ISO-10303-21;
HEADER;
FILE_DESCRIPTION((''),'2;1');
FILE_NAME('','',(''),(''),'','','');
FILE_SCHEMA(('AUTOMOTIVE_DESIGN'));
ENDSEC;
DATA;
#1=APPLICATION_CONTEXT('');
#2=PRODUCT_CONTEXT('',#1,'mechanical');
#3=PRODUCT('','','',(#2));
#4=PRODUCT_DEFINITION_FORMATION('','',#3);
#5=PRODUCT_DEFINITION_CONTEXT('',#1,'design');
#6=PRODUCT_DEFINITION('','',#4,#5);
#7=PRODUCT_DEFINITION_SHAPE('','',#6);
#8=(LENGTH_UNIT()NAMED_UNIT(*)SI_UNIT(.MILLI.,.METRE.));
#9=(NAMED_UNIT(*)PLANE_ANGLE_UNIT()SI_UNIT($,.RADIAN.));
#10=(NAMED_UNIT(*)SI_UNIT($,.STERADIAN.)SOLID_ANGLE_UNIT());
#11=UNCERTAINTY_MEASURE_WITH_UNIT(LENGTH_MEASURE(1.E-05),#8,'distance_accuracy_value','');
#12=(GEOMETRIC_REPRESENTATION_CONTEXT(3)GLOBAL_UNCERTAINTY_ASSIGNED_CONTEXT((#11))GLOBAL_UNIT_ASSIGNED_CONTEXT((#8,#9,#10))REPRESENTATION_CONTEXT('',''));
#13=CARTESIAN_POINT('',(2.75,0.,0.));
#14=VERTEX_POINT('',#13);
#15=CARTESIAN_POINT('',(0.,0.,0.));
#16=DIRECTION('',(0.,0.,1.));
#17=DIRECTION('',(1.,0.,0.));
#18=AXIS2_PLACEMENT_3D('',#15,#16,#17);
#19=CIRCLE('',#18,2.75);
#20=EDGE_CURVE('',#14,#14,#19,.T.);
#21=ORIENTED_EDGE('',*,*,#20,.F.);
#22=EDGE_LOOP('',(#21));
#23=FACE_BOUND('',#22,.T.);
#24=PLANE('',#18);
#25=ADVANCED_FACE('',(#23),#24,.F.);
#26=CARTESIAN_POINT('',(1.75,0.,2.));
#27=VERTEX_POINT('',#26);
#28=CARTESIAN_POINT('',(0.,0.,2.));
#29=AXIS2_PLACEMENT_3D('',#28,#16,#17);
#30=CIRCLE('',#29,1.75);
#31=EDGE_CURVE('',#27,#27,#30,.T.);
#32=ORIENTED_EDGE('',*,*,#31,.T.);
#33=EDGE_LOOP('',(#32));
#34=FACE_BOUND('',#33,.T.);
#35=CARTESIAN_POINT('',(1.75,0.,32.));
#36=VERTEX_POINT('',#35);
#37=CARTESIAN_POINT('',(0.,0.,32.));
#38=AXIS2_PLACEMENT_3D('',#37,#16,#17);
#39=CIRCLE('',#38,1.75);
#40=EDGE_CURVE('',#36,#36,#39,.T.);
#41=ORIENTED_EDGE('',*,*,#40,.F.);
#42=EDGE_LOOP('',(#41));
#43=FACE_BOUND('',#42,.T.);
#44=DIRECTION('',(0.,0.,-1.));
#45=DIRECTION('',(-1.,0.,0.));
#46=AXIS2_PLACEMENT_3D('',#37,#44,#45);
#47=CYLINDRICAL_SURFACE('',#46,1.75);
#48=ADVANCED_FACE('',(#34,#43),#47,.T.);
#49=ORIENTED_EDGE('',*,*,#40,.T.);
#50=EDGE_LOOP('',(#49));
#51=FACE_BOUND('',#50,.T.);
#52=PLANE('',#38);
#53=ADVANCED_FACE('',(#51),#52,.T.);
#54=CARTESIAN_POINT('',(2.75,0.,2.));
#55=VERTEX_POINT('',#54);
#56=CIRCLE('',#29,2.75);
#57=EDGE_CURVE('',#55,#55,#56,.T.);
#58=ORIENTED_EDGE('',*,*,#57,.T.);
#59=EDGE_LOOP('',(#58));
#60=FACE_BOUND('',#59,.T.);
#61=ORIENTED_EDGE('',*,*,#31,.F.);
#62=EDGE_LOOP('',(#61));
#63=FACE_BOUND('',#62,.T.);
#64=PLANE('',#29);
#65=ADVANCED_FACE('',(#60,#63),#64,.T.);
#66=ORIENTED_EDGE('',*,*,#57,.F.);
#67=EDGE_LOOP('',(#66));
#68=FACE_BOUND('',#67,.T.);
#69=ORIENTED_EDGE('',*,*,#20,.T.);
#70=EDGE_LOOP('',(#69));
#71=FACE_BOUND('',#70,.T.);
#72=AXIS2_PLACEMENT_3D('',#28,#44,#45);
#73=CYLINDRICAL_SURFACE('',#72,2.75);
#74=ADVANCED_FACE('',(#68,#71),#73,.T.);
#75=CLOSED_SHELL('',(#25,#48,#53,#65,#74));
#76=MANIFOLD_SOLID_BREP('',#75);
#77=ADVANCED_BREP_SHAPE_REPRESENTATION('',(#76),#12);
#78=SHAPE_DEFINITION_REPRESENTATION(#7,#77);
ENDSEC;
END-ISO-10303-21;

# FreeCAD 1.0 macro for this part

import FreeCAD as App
import Part
import Sketcher

V = App.Vector

doc = App.newDocument("Part")
body = doc.addObject("PartDesign::Body", "Body")

sketch1 = body.newObject("Sketcher::SketchObject", "Sketch")
sketch1.AttachmentSupport = (doc.getObject("XY_Plane"), [""])
sketch1.MapMode = "FlatFace"
sketch1.addGeometry(Part.Circle(V(0, 0, 0), V(0, 0, 1), 2.8), False)
sketch1.addConstraint([
    Sketcher.Constraint("Coincident", 0, 3, -1, 1),
    Sketcher.Constraint("Diameter", 0, 5.5),
])
pad1 = body.newObject("PartDesign::Pad", "Pad")
pad1.Profile = sketch1
pad1.Length = 2

sketch2 = body.newObject("Sketcher::SketchObject", "Sketch001")
sketch2.AttachmentSupport = (doc.getObject("XY_Plane"), [""])
sketch2.MapMode = "FlatFace"
sketch2.AttachmentOffset = App.Placement(V(0, 0, 2), App.Rotation())
sketch2.addGeometry(Part.Circle(V(0, 0, 0), V(0, 0, 1), 1.8), False)
sketch2.addConstraint([
    Sketcher.Constraint("Coincident", 0, 3, -1, 1),
    Sketcher.Constraint("Diameter", 0, 3.5),
])
pad2 = body.newObject("PartDesign::Pad", "Pad001")
pad2.Profile = sketch2
pad2.Length = 30

doc.recompute()
